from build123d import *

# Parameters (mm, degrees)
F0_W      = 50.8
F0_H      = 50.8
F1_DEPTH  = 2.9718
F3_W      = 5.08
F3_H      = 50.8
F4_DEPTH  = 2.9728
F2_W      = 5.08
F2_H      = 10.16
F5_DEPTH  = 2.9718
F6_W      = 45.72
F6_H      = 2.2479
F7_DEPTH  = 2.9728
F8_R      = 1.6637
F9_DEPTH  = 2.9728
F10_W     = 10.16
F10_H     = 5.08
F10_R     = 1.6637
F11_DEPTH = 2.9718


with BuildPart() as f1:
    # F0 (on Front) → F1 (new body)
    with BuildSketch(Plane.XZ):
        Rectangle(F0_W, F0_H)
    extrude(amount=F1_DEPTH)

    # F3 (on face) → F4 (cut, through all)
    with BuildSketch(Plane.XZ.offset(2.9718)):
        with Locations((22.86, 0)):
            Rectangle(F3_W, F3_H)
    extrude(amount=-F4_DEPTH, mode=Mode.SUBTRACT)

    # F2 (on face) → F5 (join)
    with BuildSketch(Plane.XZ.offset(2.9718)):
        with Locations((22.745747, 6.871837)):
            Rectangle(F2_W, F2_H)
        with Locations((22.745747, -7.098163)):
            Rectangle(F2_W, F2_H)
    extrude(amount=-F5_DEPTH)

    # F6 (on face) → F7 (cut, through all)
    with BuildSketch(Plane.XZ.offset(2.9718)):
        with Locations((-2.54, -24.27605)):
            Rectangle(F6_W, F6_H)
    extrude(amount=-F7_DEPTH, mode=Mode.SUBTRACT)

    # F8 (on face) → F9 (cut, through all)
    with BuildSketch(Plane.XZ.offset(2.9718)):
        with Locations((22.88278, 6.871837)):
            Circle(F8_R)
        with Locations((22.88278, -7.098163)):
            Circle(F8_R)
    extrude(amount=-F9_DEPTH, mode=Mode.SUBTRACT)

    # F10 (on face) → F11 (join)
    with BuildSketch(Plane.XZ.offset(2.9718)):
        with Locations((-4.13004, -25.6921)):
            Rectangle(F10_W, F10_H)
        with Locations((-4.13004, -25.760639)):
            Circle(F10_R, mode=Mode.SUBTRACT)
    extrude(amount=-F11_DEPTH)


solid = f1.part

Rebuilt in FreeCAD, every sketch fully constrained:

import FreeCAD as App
import Part
import Sketcher
Q = App.Units.Quantity

doc = App.newDocument("Part")
body = doc.addObject("PartDesign::Body", "Body")

# Sketch on XZ plane
sketch1 = doc.addObject("Sketcher::SketchObject", "Sketch")
body.addObject(sketch1)
sketch1.AttachmentSupport = (doc.XZ_Plane, [""])
sketch1.MapMode = "FlatFace"
sketch1.addGeometry([
    Part.LineSegment(App.Vector(-25, 25, 0), App.Vector(-25, -25, 0)),
    Part.LineSegment(App.Vector(-25, -25, 0), App.Vector(25, -25, 0)),
    Part.LineSegment(App.Vector(25, -25, 0), App.Vector(25, 25, 0)),
    Part.LineSegment(App.Vector(25, 25, 0), App.Vector(-25, 25, 0)),
], False)
sketch1.addConstraint([
    Sketcher.Constraint("Coincident", 0, 2, 1, 1),
    Sketcher.Constraint("Coincident", 1, 2, 2, 1),
    Sketcher.Constraint("Coincident", 2, 2, 3, 1),
    Sketcher.Constraint("Coincident", 3, 2, 0, 1),
    Sketcher.Constraint("Vertical", 0),
    Sketcher.Constraint("Horizontal", 1),
    Sketcher.Constraint("Vertical", 2),
    Sketcher.Constraint("Horizontal", 3),
    Sketcher.Constraint("Symmetric", 0, 2, 2, 2, -1, 1),
    Sketcher.Constraint("Equal", 3, 0),
    Sketcher.Constraint("DistanceX", 1, 1, 1, 2, Q("2 in")),
])
pad1 = doc.addObject("PartDesign::Pad", "Pad")
body.addObject(pad1)
pad1.Profile = sketch1
pad1.Length = Q("0.117 in")

# Sketch on XZ plane
sketch2 = doc.addObject("Sketcher::SketchObject", "Sketch001")
body.addObject(sketch2)
sketch2.AttachmentSupport = (doc.XZ_Plane, [""])
sketch2.MapMode = "FlatFace"
sketch2.AttachmentOffset = App.Placement(App.Vector(0, 0, 0.117 * 25.4), App.Rotation())
sketch2.addGeometry([
    Part.LineSegment(App.Vector(20, 25, 0), App.Vector(20, -25, 0)),
    Part.LineSegment(App.Vector(20, -25, 0), App.Vector(25, -25, 0)),
    Part.LineSegment(App.Vector(25, -25, 0), App.Vector(25, 25, 0)),
    Part.LineSegment(App.Vector(25, 25, 0), App.Vector(20, 25, 0)),
], False)
sketch2.addConstraint([
    Sketcher.Constraint("Coincident", 0, 2, 1, 1),
    Sketcher.Constraint("Coincident", 1, 2, 2, 1),
    Sketcher.Constraint("Coincident", 2, 2, 3, 1),
    Sketcher.Constraint("Coincident", 3, 2, 0, 1),
    Sketcher.Constraint("Vertical", 0),
    Sketcher.Constraint("Horizontal", 1),
    Sketcher.Constraint("Vertical", 2),
    Sketcher.Constraint("Horizontal", 3),
    Sketcher.Constraint("DistanceY", 0, 2, 0, 1, Q("2 in")),
    Sketcher.Constraint("DistanceX", 1, 1, 1, 2, Q("0.2 in")),
    Sketcher.Constraint("DistanceY", 0, 2, -1, 1, Q("1 in")),
    Sketcher.Constraint("DistanceX", -1, 1, 1, 2, Q("1 in")),
])
pocket1 = doc.addObject("PartDesign::Pocket", "Pocket")
body.addObject(pocket1)
pocket1.Profile = sketch2
pocket1.Type = "ThroughAll"

# Sketch on XZ plane
sketch3 = doc.addObject("Sketcher::SketchObject", "Sketch002")
body.addObject(sketch3)
sketch3.AttachmentSupport = (doc.XZ_Plane, [""])
sketch3.MapMode = "FlatFace"
sketch3.AttachmentOffset = App.Placement(App.Vector(0, 0, 0.117 * 25.4), App.Rotation())
sketch3.addGeometry([
    Part.LineSegment(App.Vector(20, 12, 0), App.Vector(20, 2, 0)),  # 0
    Part.LineSegment(App.Vector(20, 2, 0), App.Vector(25, 2, 0)),  # 1
    Part.LineSegment(App.Vector(25, 2, 0), App.Vector(25, 12, 0)),  # 2
    Part.LineSegment(App.Vector(25, 12, 0), App.Vector(20, 12, 0)),  # 3
    Part.LineSegment(App.Vector(20, -2, 0), App.Vector(20, -12, 0)),  # 4
    Part.LineSegment(App.Vector(20, -12, 0), App.Vector(25, -12, 0)),  # 5
    Part.LineSegment(App.Vector(25, -12, 0), App.Vector(25, -2, 0)),  # 6
    Part.LineSegment(App.Vector(25, -2, 0), App.Vector(20, -2, 0)),  # 7
], False)
sketch3.addConstraint([
    Sketcher.Constraint("Coincident", 0, 2, 1, 1),
    Sketcher.Constraint("Coincident", 1, 2, 2, 1),
    Sketcher.Constraint("Coincident", 2, 2, 3, 1),
    Sketcher.Constraint("Coincident", 3, 2, 0, 1),
    Sketcher.Constraint("Coincident", 4, 2, 5, 1),
    Sketcher.Constraint("Coincident", 5, 2, 6, 1),
    Sketcher.Constraint("Coincident", 6, 2, 7, 1),
    Sketcher.Constraint("Coincident", 7, 2, 4, 1),
    Sketcher.Constraint("Vertical", 0),
    Sketcher.Constraint("Horizontal", 1),
    Sketcher.Constraint("Vertical", 2),
    Sketcher.Constraint("Horizontal", 3),
    Sketcher.Constraint("Vertical", 4),
    Sketcher.Constraint("Horizontal", 5),
    Sketcher.Constraint("Vertical", 6),
    Sketcher.Constraint("Horizontal", 7),
    Sketcher.Constraint("Vertical", 3, 2, 4, 2),
    Sketcher.Constraint("Vertical", 2, 2, 5, 2),
    Sketcher.Constraint("Equal", 2, 4),
    Sketcher.Constraint("DistanceX", 1, 1, 1, 2, Q("0.2 in")),
    Sketcher.Constraint("DistanceY", 0, 2, 0, 1, Q("0.4 in")),
    Sketcher.Constraint("DistanceY", 4, 2, 0, 2, Q("0.55 in")),
    Sketcher.Constraint("DistanceX", -1, 1, 0, 2, Q("20.205747 mm")),
    Sketcher.Constraint("DistanceY", -1, 1, 0, 2, Q("1.791837 mm")),
])
pad2 = doc.addObject("PartDesign::Pad", "Pad001")
body.addObject(pad2)
pad2.Profile = sketch3
pad2.Length = Q("0.117 in")
pad2.Reversed = True

# Sketch on XZ plane
sketch4 = doc.addObject("Sketcher::SketchObject", "Sketch003")
body.addObject(sketch4)
sketch4.AttachmentSupport = (doc.XZ_Plane, [""])
sketch4.MapMode = "FlatFace"
sketch4.AttachmentOffset = App.Placement(App.Vector(0, 0, 0.117 * 25.4), App.Rotation())
sketch4.addGeometry([
    Part.LineSegment(App.Vector(-25.4, -23.2, 0), App.Vector(-25.4, -25.4, 0)),
    Part.LineSegment(App.Vector(-25.4, -25.4, 0), App.Vector(20.3, -25.4, 0)),
    Part.LineSegment(App.Vector(20.3, -25.4, 0), App.Vector(20.3, -23.2, 0)),
    Part.LineSegment(App.Vector(20.3, -23.2, 0), App.Vector(-25.4, -23.2, 0)),
], False)
sketch4.addConstraint([
    Sketcher.Constraint("Coincident", 0, 2, 1, 1),
    Sketcher.Constraint("Coincident", 1, 2, 2, 1),
    Sketcher.Constraint("Coincident", 2, 2, 3, 1),
    Sketcher.Constraint("Coincident", 3, 2, 0, 1),
    Sketcher.Constraint("Vertical", 0),
    Sketcher.Constraint("Horizontal", 1),
    Sketcher.Constraint("Vertical", 2),
    Sketcher.Constraint("Horizontal", 3),
    Sketcher.Constraint("DistanceX", 1, 1, 1, 2, Q("1.8 in")),
    Sketcher.Constraint("DistanceX", 0, 2, -1, 1, Q("1 in")),
    Sketcher.Constraint("DistanceY", 0, 2, -1, 1, Q("1 in")),
    Sketcher.Constraint("DistanceY", 0, 2, 0, 1, Q("0.0885 in")),
])
pocket2 = doc.addObject("PartDesign::Pocket", "Pocket001")
body.addObject(pocket2)
pocket2.Profile = sketch4
pocket2.Type = "ThroughAll"

# Sketch on XZ plane
sketch5 = doc.addObject("Sketcher::SketchObject", "Sketch004")
body.addObject(sketch5)
sketch5.AttachmentSupport = (doc.XZ_Plane, [""])
sketch5.MapMode = "FlatFace"
sketch5.AttachmentOffset = App.Placement(App.Vector(0, 0, 0.117 * 25.4), App.Rotation())
sketch5.addGeometry([
    Part.Circle(App.Vector(22.9, 6.9, 0), App.Vector(0, 0, 1), 1.7),
    Part.Circle(App.Vector(22.9, -7.1, 0), App.Vector(0, 0, 1), 1.7),
], False)
sketch5.addConstraint([
    Sketcher.Constraint("Equal", 0, 1),
    Sketcher.Constraint("Vertical", 0, 3, 1, 3),
    Sketcher.Constraint("Diameter", 0, Q("0.131 in")),
    Sketcher.Constraint("DistanceY", 1, 3, 0, 3, Q("0.55 in")),
    Sketcher.Constraint("DistanceX", -1, 1, 0, 3, Q("22.88278 mm")),
    Sketcher.Constraint("DistanceY", -1, 1, 0, 3, Q("6.871837 mm")),
])
pocket3 = doc.addObject("PartDesign::Pocket", "Pocket002")
body.addObject(pocket3)
pocket3.Profile = sketch5
pocket3.Type = "ThroughAll"

# Sketch on XZ plane
sketch6 = doc.addObject("Sketcher::SketchObject", "Sketch005")
body.addObject(sketch6)
sketch6.AttachmentSupport = (doc.XZ_Plane, [""])
sketch6.MapMode = "FlatFace"
sketch6.AttachmentOffset = App.Placement(App.Vector(0, 0, 0.117 * 25.4), App.Rotation())
sketch6.addGeometry([
    Part.LineSegment(App.Vector(-9.2, -23.2, 0), App.Vector(-9.2, -28.2, 0)),  # 0
    Part.LineSegment(App.Vector(-9.2, -28.2, 0), App.Vector(0.9, -28.2, 0)),  # 1
    Part.LineSegment(App.Vector(0.9, -28.2, 0), App.Vector(0.9, -23.2, 0)),  # 2
    Part.LineSegment(App.Vector(0.9, -23.2, 0), App.Vector(-9.2, -23.2, 0)),  # 3
    Part.Circle(App.Vector(-4.1, -25.8, 0), App.Vector(0, 0, 1), 1.7),  # 4
], False)
sketch6.addConstraint([
    Sketcher.Constraint("Coincident", 0, 2, 1, 1),
    Sketcher.Constraint("Coincident", 1, 2, 2, 1),
    Sketcher.Constraint("Coincident", 2, 2, 3, 1),
    Sketcher.Constraint("Coincident", 3, 2, 0, 1),
    Sketcher.Constraint("Vertical", 0),
    Sketcher.Constraint("Horizontal", 1),
    Sketcher.Constraint("Vertical", 2),
    Sketcher.Constraint("Horizontal", 3),
    Sketcher.Constraint("Diameter", 4, Q("0.131 in")),
    Sketcher.Constraint("DistanceX", 1, 1, 1, 2, Q("0.4 in")),
    Sketcher.Constraint("DistanceY", 0, 2, 0, 1, Q("0.2 in")),
    Sketcher.Constraint("DistanceX", 0, 2, 4, 3, Q("0.2 in")),
    Sketcher.Constraint("DistanceX", 4, 3, -1, 1, Q("0.1626 in")),
    Sketcher.Constraint("DistanceY", 0, 2, -1, 1, Q("1.1115 in")),
    Sketcher.Constraint("DistanceY", 4, 3, -1, 1, Q("25.760639 mm")),
])
pad3 = doc.addObject("PartDesign::Pad", "Pad002")
body.addObject(pad3)
pad3.Profile = sketch6
pad3.Length = Q("0.117 in")
pad3.Reversed = True

doc.recompute()
